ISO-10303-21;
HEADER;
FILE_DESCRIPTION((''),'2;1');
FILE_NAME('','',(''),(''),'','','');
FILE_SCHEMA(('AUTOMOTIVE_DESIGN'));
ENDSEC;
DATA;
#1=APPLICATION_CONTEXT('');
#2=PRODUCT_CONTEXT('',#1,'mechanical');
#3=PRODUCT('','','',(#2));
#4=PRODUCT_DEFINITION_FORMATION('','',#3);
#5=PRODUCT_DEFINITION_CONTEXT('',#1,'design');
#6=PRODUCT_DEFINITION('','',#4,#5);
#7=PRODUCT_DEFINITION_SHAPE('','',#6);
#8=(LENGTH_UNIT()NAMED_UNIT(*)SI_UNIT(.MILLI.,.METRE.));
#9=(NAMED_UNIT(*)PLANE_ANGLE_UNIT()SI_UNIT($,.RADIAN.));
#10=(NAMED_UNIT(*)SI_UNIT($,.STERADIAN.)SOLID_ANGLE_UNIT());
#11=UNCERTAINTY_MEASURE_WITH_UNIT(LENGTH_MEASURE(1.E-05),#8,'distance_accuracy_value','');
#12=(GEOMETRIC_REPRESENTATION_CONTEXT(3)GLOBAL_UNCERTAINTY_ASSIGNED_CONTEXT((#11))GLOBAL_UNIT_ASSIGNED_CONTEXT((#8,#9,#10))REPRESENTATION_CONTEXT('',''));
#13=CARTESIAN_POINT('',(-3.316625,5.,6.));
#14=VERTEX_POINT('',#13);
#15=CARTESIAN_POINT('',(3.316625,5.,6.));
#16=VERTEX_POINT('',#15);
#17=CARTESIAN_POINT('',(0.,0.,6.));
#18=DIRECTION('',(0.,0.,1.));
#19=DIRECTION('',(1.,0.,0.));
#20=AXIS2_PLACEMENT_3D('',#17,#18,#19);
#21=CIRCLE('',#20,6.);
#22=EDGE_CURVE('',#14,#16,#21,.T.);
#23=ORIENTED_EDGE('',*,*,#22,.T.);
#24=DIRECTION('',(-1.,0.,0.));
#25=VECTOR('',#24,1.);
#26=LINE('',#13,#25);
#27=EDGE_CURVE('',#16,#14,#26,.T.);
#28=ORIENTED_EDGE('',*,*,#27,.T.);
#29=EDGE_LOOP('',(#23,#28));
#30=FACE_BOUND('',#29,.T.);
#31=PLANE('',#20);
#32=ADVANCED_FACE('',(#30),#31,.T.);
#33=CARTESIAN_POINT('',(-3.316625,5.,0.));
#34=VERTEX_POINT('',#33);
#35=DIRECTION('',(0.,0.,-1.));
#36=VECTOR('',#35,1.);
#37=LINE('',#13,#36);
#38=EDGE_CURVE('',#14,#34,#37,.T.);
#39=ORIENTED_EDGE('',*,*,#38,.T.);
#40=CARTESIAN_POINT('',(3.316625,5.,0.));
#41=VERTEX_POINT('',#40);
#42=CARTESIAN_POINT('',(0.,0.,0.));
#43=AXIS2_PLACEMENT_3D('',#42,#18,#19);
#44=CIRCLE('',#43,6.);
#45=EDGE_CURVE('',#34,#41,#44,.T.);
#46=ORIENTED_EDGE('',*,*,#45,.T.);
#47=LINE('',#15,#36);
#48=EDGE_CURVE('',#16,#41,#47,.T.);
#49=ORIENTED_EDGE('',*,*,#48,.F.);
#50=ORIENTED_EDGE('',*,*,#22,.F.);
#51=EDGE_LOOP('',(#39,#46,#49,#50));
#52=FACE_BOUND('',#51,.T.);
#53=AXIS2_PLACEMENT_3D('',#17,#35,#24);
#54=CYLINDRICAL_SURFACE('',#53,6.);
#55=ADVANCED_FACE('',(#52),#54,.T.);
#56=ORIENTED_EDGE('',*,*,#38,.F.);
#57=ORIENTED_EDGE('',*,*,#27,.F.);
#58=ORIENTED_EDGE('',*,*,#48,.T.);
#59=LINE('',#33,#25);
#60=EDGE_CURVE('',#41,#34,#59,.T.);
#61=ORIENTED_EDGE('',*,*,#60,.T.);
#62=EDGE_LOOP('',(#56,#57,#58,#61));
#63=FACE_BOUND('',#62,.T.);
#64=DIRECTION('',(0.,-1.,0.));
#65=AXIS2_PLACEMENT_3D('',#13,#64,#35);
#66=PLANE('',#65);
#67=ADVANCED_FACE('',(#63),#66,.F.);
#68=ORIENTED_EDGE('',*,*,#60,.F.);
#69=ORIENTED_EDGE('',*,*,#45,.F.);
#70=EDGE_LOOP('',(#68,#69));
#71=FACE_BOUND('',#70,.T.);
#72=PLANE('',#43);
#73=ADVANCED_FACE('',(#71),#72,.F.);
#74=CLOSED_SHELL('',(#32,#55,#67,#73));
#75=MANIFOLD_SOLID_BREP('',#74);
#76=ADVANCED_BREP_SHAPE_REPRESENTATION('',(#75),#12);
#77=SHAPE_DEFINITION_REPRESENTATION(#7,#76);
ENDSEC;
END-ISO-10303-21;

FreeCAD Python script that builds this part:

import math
import FreeCAD as App
import Part
import Sketcher
from FreeCAD import Vector
Q = App.Units.Quantity

doc = App.newDocument("Part")
body = doc.addObject("PartDesign::Body", "Body")

# Sketch on XY plane
sketch1 = body.newObject("Sketcher::SketchObject", "Sketch")
sketch1.AttachmentSupport = (doc.getObject("XY_Plane"), [""])
sketch1.MapMode = "FlatFace"
sketch1.addGeometry([
    Part.LineSegment(Vector(3, 5, 0), Vector(-3, 5, 0)),
    Part.ArcOfCircle(Part.Circle(Vector(0, 0, 0), Vector(0, 0, 1), 6), math.radians(124), math.radians(416)),
], False)
sketch1.addConstraint([
    Sketcher.Constraint("Coincident", 0, 1, 1, 2),
    Sketcher.Constraint("Coincident", 1, 1, 0, 2),
    Sketcher.Constraint("Horizontal", 0),
    Sketcher.Constraint("Coincident", 1, 3, -1, 1),
    Sketcher.Constraint("Radius", 1, Q("6 mm")),
    Sketcher.Constraint("DistanceY", -1, 1, 0, 1, Q("5 mm")),
])
pad1 = body.newObject("PartDesign::Pad", "Pad")
pad1.Profile = sketch1
pad1.Length = 6

doc.recompute()
